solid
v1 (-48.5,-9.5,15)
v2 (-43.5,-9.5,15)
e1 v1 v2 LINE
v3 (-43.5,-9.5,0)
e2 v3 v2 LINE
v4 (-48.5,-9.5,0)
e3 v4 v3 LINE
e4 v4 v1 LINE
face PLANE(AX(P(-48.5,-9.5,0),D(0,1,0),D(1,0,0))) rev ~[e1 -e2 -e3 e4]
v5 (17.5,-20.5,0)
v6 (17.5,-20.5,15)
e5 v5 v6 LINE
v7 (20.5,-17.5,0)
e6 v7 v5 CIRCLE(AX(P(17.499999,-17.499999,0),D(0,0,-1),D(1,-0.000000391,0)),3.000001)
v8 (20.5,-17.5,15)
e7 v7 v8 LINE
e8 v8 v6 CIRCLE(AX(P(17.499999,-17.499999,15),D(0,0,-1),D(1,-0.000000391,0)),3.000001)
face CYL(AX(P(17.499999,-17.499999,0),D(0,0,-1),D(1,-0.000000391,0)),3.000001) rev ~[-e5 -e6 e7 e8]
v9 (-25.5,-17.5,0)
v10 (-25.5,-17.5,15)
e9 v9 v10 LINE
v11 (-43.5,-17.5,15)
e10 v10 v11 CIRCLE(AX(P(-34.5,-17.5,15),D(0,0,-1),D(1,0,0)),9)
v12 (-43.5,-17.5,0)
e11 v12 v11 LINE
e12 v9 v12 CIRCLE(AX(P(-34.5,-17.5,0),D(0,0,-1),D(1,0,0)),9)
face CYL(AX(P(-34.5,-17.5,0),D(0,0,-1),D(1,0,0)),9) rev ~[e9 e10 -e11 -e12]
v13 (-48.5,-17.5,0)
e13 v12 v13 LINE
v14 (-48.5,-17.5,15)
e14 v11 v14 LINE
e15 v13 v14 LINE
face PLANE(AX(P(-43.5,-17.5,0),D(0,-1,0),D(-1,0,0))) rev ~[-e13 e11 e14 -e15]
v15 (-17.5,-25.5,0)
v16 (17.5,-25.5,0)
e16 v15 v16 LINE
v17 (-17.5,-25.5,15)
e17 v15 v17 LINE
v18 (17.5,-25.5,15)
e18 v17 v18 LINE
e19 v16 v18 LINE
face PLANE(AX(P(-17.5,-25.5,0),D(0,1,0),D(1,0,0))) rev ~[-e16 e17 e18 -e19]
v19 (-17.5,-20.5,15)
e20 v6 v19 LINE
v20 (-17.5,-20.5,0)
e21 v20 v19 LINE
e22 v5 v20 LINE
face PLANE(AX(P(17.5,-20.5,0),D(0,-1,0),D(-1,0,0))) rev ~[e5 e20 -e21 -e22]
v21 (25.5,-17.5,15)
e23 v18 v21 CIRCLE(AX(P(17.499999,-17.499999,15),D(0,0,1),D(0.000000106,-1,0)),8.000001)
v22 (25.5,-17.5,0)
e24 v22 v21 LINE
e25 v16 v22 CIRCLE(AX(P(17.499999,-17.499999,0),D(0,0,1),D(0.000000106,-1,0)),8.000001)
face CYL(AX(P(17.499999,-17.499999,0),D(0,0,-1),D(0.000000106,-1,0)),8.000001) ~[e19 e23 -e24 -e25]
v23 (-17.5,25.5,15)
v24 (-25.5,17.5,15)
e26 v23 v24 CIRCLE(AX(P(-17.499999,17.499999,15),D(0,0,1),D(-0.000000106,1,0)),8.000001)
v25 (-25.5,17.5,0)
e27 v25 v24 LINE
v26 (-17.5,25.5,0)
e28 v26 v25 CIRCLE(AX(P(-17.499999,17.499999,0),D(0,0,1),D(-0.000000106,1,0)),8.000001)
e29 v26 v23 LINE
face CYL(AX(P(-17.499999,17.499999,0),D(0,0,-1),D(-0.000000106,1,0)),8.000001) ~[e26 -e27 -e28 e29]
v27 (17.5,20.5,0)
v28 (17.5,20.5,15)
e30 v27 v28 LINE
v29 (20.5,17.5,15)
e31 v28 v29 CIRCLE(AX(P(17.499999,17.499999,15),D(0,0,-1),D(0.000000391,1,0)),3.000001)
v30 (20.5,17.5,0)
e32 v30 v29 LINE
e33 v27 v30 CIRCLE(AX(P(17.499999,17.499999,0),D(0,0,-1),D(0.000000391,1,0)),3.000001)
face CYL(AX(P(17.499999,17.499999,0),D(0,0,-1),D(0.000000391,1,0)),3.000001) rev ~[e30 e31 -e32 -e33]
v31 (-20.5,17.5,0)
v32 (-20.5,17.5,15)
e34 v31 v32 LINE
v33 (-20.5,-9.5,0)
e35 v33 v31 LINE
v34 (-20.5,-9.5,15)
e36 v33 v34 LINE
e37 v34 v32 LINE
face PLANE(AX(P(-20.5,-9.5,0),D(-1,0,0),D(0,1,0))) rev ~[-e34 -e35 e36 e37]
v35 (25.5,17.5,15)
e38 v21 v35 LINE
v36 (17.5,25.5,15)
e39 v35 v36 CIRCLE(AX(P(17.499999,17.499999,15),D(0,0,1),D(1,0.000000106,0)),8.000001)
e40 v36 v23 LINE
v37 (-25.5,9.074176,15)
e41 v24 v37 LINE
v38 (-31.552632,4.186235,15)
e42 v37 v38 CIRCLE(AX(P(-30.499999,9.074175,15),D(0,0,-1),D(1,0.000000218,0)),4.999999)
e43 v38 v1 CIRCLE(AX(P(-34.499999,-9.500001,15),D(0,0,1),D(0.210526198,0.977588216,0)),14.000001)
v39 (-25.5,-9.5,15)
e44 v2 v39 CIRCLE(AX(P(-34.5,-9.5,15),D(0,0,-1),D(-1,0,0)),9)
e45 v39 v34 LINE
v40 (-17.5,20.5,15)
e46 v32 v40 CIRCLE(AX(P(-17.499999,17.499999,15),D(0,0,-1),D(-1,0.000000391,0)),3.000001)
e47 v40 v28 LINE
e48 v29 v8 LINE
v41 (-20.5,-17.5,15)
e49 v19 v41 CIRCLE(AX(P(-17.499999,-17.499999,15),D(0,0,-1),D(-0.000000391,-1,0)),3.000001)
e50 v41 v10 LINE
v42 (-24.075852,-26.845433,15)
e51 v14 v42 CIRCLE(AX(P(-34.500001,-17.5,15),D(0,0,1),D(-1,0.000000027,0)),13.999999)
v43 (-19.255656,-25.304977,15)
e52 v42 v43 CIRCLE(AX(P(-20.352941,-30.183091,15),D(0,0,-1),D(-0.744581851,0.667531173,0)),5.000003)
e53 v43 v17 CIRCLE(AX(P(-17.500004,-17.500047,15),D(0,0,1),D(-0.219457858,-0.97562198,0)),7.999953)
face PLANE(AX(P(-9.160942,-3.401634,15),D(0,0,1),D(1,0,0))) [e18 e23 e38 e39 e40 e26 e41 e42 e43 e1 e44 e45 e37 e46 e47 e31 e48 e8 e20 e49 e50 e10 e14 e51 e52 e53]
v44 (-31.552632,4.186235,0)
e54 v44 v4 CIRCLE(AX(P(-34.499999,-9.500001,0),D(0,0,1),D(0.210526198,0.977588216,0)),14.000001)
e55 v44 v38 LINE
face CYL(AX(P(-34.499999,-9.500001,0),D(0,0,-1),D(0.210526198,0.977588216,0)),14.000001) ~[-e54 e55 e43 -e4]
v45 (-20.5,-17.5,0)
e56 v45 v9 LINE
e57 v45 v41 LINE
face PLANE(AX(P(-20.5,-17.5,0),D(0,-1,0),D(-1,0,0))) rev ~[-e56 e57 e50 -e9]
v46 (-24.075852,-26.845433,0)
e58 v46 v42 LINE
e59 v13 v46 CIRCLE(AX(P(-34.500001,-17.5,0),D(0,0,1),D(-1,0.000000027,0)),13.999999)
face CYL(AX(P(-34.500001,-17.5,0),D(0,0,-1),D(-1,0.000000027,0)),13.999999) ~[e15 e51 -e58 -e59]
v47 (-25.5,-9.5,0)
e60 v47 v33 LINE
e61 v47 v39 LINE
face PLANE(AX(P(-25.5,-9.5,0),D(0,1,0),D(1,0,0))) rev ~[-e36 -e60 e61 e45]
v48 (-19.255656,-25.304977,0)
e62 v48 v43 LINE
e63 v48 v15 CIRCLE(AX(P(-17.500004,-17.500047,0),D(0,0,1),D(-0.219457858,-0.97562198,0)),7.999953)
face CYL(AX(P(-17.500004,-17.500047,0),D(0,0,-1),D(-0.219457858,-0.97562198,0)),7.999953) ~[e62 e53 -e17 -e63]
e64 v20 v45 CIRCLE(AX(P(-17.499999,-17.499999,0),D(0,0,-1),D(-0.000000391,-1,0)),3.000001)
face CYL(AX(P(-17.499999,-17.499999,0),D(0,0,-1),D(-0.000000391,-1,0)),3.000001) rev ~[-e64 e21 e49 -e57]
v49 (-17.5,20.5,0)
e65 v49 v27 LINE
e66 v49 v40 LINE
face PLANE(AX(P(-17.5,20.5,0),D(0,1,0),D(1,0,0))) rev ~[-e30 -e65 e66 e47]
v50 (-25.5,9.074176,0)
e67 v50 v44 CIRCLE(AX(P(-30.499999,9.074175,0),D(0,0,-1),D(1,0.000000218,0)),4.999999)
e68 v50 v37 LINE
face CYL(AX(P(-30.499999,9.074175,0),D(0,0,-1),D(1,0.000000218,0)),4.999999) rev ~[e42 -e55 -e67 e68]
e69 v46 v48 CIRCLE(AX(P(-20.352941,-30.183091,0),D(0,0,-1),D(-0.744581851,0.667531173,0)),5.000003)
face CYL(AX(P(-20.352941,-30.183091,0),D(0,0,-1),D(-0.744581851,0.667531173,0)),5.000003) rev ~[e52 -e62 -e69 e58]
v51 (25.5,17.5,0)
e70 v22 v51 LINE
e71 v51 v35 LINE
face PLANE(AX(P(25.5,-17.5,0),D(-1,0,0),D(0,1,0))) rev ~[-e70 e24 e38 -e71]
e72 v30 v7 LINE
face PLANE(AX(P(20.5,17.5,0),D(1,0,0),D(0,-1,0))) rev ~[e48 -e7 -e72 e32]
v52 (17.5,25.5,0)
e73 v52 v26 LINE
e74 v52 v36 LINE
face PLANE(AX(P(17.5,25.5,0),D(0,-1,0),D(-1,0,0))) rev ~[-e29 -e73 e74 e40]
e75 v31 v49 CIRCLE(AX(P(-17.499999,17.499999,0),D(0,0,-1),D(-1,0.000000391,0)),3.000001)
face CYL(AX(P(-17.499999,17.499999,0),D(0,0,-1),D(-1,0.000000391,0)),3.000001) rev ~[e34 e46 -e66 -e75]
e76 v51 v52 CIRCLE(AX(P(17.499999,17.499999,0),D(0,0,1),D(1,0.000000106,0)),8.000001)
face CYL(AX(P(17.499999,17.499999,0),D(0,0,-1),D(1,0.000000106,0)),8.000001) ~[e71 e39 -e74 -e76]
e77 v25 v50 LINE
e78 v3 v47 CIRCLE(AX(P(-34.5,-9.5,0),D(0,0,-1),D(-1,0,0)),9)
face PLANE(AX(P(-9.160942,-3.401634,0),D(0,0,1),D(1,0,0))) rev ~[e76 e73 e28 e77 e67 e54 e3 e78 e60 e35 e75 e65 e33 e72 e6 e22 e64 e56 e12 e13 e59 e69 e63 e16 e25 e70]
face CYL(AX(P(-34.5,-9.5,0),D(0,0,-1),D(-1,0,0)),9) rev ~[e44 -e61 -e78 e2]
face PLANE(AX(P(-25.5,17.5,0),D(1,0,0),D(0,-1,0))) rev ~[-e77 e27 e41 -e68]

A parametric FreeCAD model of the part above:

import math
import FreeCAD as App
import Part
import Sketcher
from FreeCAD import Vector

doc = App.newDocument("Part")
body = doc.addObject("PartDesign::Body", "Body")

sketch1 = body.newObject("Sketcher::SketchObject", "Sketch")
sketch1.AttachmentSupport = (doc.getObject("XY_Plane"), [""])
sketch1.MapMode = "FlatFace"
sketch1.addGeometry([
    Part.ArcOfCircle(Part.Circle(Vector(17.5, -17.5, 0), Vector(0, 0, 1), 3), math.radians(-90), math.radians(0)),
    Part.LineSegment(Vector(17.5, -20.5, 0), Vector(-17.5, -20.5, 0)),
    Part.ArcOfCircle(Part.Circle(Vector(-17.5, -17.5, 0), Vector(0, 0, 1), 3), math.radians(-180), math.radians(-90)),
    Part.LineSegment(Vector(-20.5, -17.5, 0), Vector(-25.5, -17.5, 0)),
    Part.ArcOfCircle(Part.Circle(Vector(-34.5, -17.5, 0), Vector(0, 0, 1), 9), math.radians(180), math.radians(360)),
    Part.LineSegment(Vector(-43.5, -17.5, 0), Vector(-48.5, -17.5, 0)),
    Part.ArcOfCircle(Part.Circle(Vector(-34.5, -17.5, 0), Vector(0, 0, 1), 14), math.radians(180), math.radians(318)),
    Part.ArcOfCircle(Part.Circle(Vector(-20.4, -30.2, 0), Vector(0, 0, 1), 5), math.radians(77), math.radians(138)),
    Part.ArcOfCircle(Part.Circle(Vector(-17.5, -17.5, 0), Vector(0, 0, 1), 8), math.radians(-102.68), math.radians(-90)),
    Part.LineSegment(Vector(-17.5, -25.5, 0), Vector(17.5, -25.5, 0)),
    Part.ArcOfCircle(Part.Circle(Vector(17.5, -17.5, 0), Vector(0, 0, 1), 8), math.radians(-90), math.radians(0)),
    Part.LineSegment(Vector(25.5, -17.5, 0), Vector(25.5, 17.5, 0)),
    Part.ArcOfCircle(Part.Circle(Vector(17.5, 17.5, 0), Vector(0, 0, 1), 8), math.radians(0), math.radians(90)),
    Part.LineSegment(Vector(17.5, 25.5, 0), Vector(-17.5, 25.5, 0)),
    Part.ArcOfCircle(Part.Circle(Vector(-17.5, 17.5, 0), Vector(0, 0, 1), 8), math.radians(90), math.radians(180)),
    Part.LineSegment(Vector(-25.5, 17.5, 0), Vector(-25.5, 9.1, 0)),
    Part.ArcOfCircle(Part.Circle(Vector(-30.5, 9.1, 0), Vector(0, 0, 1), 5), math.radians(-102), math.radians(0)),
    Part.ArcOfCircle(Part.Circle(Vector(-34.5, -9.5, 0), Vector(0, 0, 1), 14), math.radians(78), math.radians(180)),
    Part.LineSegment(Vector(-48.5, -9.5, 0), Vector(-43.5, -9.5, 0)),
    Part.ArcOfCircle(Part.Circle(Vector(-34.5, -9.5, 0), Vector(0, 0, 1), 9), math.radians(0), math.radians(180)),
    Part.LineSegment(Vector(-25.5, -9.5, 0), Vector(-20.5, -9.5, 0)),
    Part.LineSegment(Vector(-20.5, -9.5, 0), Vector(-20.5, 17.5, 0)),
    Part.ArcOfCircle(Part.Circle(Vector(-17.5, 17.5, 0), Vector(0, 0, 1), 3), math.radians(90), math.radians(180)),
    Part.LineSegment(Vector(-17.5, 20.5, 0), Vector(17.5, 20.5, 0)),
    Part.ArcOfCircle(Part.Circle(Vector(17.5, 17.5, 0), Vector(0, 0, 1), 3), math.radians(0), math.radians(90)),
    Part.LineSegment(Vector(20.5, 17.5, 0), Vector(20.5, -17.5, 0)),
], False)
sketch1.addConstraint([
    Sketcher.Constraint("Tangent", 0, 1, 1, 1),
    Sketcher.Constraint("Tangent", 1, 2, 2, 2),
    Sketcher.Constraint("Coincident", 2, 1, 3, 1),
    Sketcher.Constraint("Coincident", 3, 2, 4, 2),
    Sketcher.Constraint("Coincident", 4, 1, 5, 1),
    Sketcher.Constraint("Coincident", 5, 2, 6, 1),
    Sketcher.Constraint("Tangent", 6, 2, 7, 2),
    Sketcher.Constraint("Tangent", 7, 1, 8, 1),
    Sketcher.Constraint("Tangent", 8, 2, 9, 1),
    Sketcher.Constraint("Tangent", 9, 2, 10, 1),
    Sketcher.Constraint("Tangent", 10, 2, 11, 1),
    Sketcher.Constraint("Tangent", 11, 2, 12, 1),
    Sketcher.Constraint("Tangent", 12, 2, 13, 1),
    Sketcher.Constraint("Tangent", 13, 2, 14, 1),
    Sketcher.Constraint("Tangent", 14, 2, 15, 1),
    Sketcher.Constraint("Tangent", 15, 2, 16, 2),
    Sketcher.Constraint("Tangent", 16, 1, 17, 1),
    Sketcher.Constraint("Coincident", 17, 2, 18, 1),
    Sketcher.Constraint("Coincident", 18, 2, 19, 2),
    Sketcher.Constraint("Coincident", 19, 1, 20, 1),
    Sketcher.Constraint("Coincident", 20, 2, 21, 1),
    Sketcher.Constraint("Tangent", 21, 2, 22, 2),
    Sketcher.Constraint("Tangent", 22, 1, 23, 1),
    Sketcher.Constraint("Tangent", 23, 2, 24, 2),
    Sketcher.Constraint("Tangent", 24, 1, 25, 1),
    Sketcher.Constraint("Tangent", 25, 2, 0, 2),
    Sketcher.Constraint("Horizontal", 1),
    Sketcher.Constraint("Horizontal", 3),
    Sketcher.Constraint("Horizontal", 5),
    Sketcher.Constraint("Horizontal", 9),
    Sketcher.Constraint("Vertical", 11),
    Sketcher.Constraint("Horizontal", 13),
    Sketcher.Constraint("Vertical", 15),
    Sketcher.Constraint("Horizontal", 18),
    Sketcher.Constraint("Horizontal", 20),
    Sketcher.Constraint("Vertical", 21),
    Sketcher.Constraint("Horizontal", 23),
    Sketcher.Constraint("Vertical", 25),
    Sketcher.Constraint("Coincident", 6, 3, 4, 3),
    Sketcher.Constraint("Coincident", 10, 3, 0, 3),
    Sketcher.Constraint("Coincident", 19, 3, 17, 3),
    Sketcher.Constraint("Coincident", 22, 3, 14, 3),
    Sketcher.Constraint("Coincident", 24, 3, 12, 3),
    Sketcher.Constraint("Equal", 0, 2),
    Sketcher.Constraint("Equal", 10, 12),
    Sketcher.Constraint("Equal", 12, 14),
    Sketcher.Constraint("Equal", 6, 17),
    Sketcher.Constraint("Equal", 4, 19),
    Sketcher.Constraint("Symmetric", 2, 3, 12, 3, -1, 1),
    Sketcher.Constraint("Symmetric", 3, 2, 11, 2, -1, 1),
    Sketcher.Constraint("Horizontal", 2, 3, 4, 3),
    Sketcher.Constraint("Horizontal", 3, 2, 4, 1),
    Sketcher.Constraint("Horizontal", 19, 3, 17, 2),
    Sketcher.Constraint("Horizontal", 18, 2, 19, 1),
    Sketcher.Constraint("Vertical", 2, 3, 14, 3),
    Sketcher.Constraint("Vertical", 6, 3, 17, 3),
    Sketcher.Constraint("Vertical", 1, 2, 8, 2),
    Sketcher.Constraint("Equal", 3, 5),
    Sketcher.Constraint("Equal", 23, 11),
    Sketcher.Constraint("Radius", 0, 3.000001),
    Sketcher.Constraint("Radius", 4, 9.0),
    Sketcher.Constraint("Radius", 6, 13.999999),
    Sketcher.Constraint("Radius", 16, 4.999999),
    Sketcher.Constraint("DistanceX", 1, 2, 1, 1, 35.0),
    Sketcher.Constraint("DistanceY", 21, 1, 21, 2, 27.0),
    Sketcher.Constraint("Radius", 7, 5.000003),
    Sketcher.Constraint("Radius", 8, 7.999953),
])
pad1 = body.newObject("PartDesign::Pad", "Pad")
pad1.Profile = sketch1
pad1.Length = 15

doc.recompute()
